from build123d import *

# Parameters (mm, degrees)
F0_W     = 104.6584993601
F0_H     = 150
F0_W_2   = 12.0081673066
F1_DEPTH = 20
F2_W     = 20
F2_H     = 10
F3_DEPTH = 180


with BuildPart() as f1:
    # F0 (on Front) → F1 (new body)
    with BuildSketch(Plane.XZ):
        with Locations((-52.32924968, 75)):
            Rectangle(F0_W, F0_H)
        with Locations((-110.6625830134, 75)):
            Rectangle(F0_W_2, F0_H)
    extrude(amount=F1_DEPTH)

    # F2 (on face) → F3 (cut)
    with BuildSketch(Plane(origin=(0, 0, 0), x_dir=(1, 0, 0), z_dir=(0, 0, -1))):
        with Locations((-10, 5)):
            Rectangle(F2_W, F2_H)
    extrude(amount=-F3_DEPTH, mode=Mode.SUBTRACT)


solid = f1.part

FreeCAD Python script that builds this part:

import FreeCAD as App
import Part
import Sketcher

V = App.Vector
Q = App.Units.Quantity

doc = App.newDocument("Part")
params = doc.addObject("Spreadsheet::Sheet", "Params")
for row, (alias, value) in enumerate([
    ("sketch1_height", "150 mm"),
    ("pad1_length", "20 mm"),
    ("sketch2_width", "20 mm"),
    ("sketch2_height", "10 mm"),
    ("pocket1_length", "180 mm"),
], start=1):
    params.set(f"A{row}", alias)
    params.set(f"B{row}", "=" + value)
    params.setAlias(f"B{row}", alias)

body = doc.addObject("PartDesign::Body", "Body")

# Sketch on XZ plane
sketch1 = doc.addObject("Sketcher::SketchObject", "Sketch")
body.addObject(sketch1)
sketch1.AttachmentSupport = (doc.XZ_Plane, [""])
sketch1.MapMode = "FlatFace"
sketch1.addGeometry(Part.LineSegment(V(0, 0, 0), V(0, 150, 0)), False)
sketch1.addGeometry(Part.LineSegment(V(0, 150, 0), V(-117, 150, 0)), False)
sketch1.addGeometry(Part.LineSegment(V(-117, 150, 0), V(-117, 0, 0)), False)
sketch1.addGeometry(Part.LineSegment(V(-117, 0, 0), V(0, 0, 0)), False)
sketch1.addConstraint(Sketcher.Constraint("Coincident", 0, 2, 1, 1))
sketch1.addConstraint(Sketcher.Constraint("Coincident", 1, 2, 2, 1))
sketch1.addConstraint(Sketcher.Constraint("Coincident", 2, 2, 3, 1))
sketch1.addConstraint(Sketcher.Constraint("Coincident", 3, 2, 0, 1))
sketch1.addConstraint(Sketcher.Constraint("Vertical", 0))
sketch1.addConstraint(Sketcher.Constraint("Horizontal", 1))
sketch1.addConstraint(Sketcher.Constraint("Vertical", 2))
sketch1.addConstraint(Sketcher.Constraint("Horizontal", 3))
sketch1.addConstraint(Sketcher.Constraint("Coincident", 3, 2, -1, 1))
sketch1.addConstraint(Sketcher.Constraint("DistanceY", 0, 1, 0, 2, Q("150 mm")))
sketch1.addConstraint(Sketcher.Constraint("DistanceX", 1, 2, 1, 1, Q("116.666667 mm")))
sketch1.setExpression("Constraints[9]", "Params.sketch1_height")
pad1 = doc.addObject("PartDesign::Pad", "Pad")
body.addObject(pad1)
pad1.Profile = sketch1
pad1.setExpression("Length", "Params.pad1_length")

# Sketch on XY plane
sketch2 = doc.addObject("Sketcher::SketchObject", "Sketch001")
body.addObject(sketch2)
sketch2.AttachmentSupport = (doc.XY_Plane, [""])
sketch2.MapMode = "FlatFace"
sketch2.addGeometry(Part.LineSegment(V(-20, -10, 0), V(-20, 0, 0)), False)
sketch2.addGeometry(Part.LineSegment(V(-20, 0, 0), V(0, 0, 0)), False)
sketch2.addGeometry(Part.LineSegment(V(0, 0, 0), V(0, -10, 0)), False)
sketch2.addGeometry(Part.LineSegment(V(0, -10, 0), V(-20, -10, 0)), False)
sketch2.addConstraint(Sketcher.Constraint("Coincident", 0, 2, 1, 1))
sketch2.addConstraint(Sketcher.Constraint("Coincident", 1, 2, 2, 1))
sketch2.addConstraint(Sketcher.Constraint("Coincident", 2, 2, 3, 1))
sketch2.addConstraint(Sketcher.Constraint("Coincident", 3, 2, 0, 1))
sketch2.addConstraint(Sketcher.Constraint("Vertical", 0))
sketch2.addConstraint(Sketcher.Constraint("Horizontal", 1))
sketch2.addConstraint(Sketcher.Constraint("Vertical", 2))
sketch2.addConstraint(Sketcher.Constraint("Horizontal", 3))
sketch2.addConstraint(Sketcher.Constraint("Coincident", 1, 2, -1, 1))
sketch2.addConstraint(Sketcher.Constraint("DistanceX", 1, 1, 1, 2, Q("20 mm")))
sketch2.addConstraint(Sketcher.Constraint("DistanceY", 0, 1, 0, 2, Q("10 mm")))
sketch2.setExpression("Constraints[9]", "Params.sketch2_width")
sketch2.setExpression("Constraints[10]", "Params.sketch2_height")
pocket1 = doc.addObject("PartDesign::Pocket", "Pocket")
body.addObject(pocket1)
pocket1.Profile = sketch2
pocket1.setExpression("Length", "Params.pocket1_length")
pocket1.Reversed = True

doc.recompute()
